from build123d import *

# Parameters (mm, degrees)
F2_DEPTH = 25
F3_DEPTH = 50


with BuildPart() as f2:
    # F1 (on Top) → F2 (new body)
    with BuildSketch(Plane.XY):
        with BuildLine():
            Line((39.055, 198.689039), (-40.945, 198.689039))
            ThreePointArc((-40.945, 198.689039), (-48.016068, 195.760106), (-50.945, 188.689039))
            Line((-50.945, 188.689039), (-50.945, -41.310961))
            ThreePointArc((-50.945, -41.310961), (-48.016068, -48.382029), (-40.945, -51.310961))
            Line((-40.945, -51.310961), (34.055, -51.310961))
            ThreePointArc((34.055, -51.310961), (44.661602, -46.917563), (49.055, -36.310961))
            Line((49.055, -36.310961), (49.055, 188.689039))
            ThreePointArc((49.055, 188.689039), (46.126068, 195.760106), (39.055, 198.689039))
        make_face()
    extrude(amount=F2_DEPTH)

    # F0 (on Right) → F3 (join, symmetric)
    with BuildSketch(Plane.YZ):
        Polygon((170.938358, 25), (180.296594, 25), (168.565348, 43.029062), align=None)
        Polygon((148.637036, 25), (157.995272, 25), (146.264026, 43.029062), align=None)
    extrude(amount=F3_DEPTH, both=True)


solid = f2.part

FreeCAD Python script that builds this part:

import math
import FreeCAD as App
import Part
import Sketcher
from FreeCAD import Vector

doc = App.newDocument("Part")
body = doc.addObject("PartDesign::Body", "Body")

sketch1 = doc.addObject("Sketcher::SketchObject", "Sketch")
body.addObject(sketch1)
sketch1.AttachmentSupport = (doc.XY_Plane, [""])
sketch1.MapMode = "FlatFace"
sketch1.addGeometry(Part.LineSegment(Vector(39, 199, 0), Vector(-41, 199, 0)), False)
sketch1.addGeometry(Part.ArcOfCircle(Part.Circle(Vector(-41, 189, 0), Vector(0, 0, 1), 10), math.radians(90), math.radians(180)), False)
sketch1.addGeometry(Part.LineSegment(Vector(-51, 189, 0), Vector(-51, -41, 0)), False)
sketch1.addGeometry(Part.ArcOfCircle(Part.Circle(Vector(-41, -41, 0), Vector(0, 0, 1), 10), math.radians(180), math.radians(270)), False)
sketch1.addGeometry(Part.LineSegment(Vector(-41, -51, 0), Vector(34, -51, 0)), False)
sketch1.addGeometry(Part.ArcOfCircle(Part.Circle(Vector(34, -36, 0), Vector(0, 0, 1), 15), math.radians(-90), math.radians(0)), False)
sketch1.addGeometry(Part.LineSegment(Vector(49, -36, 0), Vector(49, 189, 0)), False)
sketch1.addGeometry(Part.ArcOfCircle(Part.Circle(Vector(39, 189, 0), Vector(0, 0, 1), 10), math.radians(0), math.radians(90)), False)
sketch1.addConstraint(Sketcher.Constraint("Tangent", 0, 2, 1, 1))
sketch1.addConstraint(Sketcher.Constraint("Tangent", 1, 2, 2, 1))
sketch1.addConstraint(Sketcher.Constraint("Tangent", 2, 2, 3, 1))
sketch1.addConstraint(Sketcher.Constraint("Tangent", 3, 2, 4, 1))
sketch1.addConstraint(Sketcher.Constraint("Tangent", 4, 2, 5, 1))
sketch1.addConstraint(Sketcher.Constraint("Tangent", 5, 2, 6, 1))
sketch1.addConstraint(Sketcher.Constraint("Tangent", 6, 2, 7, 1))
sketch1.addConstraint(Sketcher.Constraint("Tangent", 7, 2, 0, 1))
sketch1.addConstraint(Sketcher.Constraint("Horizontal", 0))
sketch1.addConstraint(Sketcher.Constraint("Vertical", 2))
sketch1.addConstraint(Sketcher.Constraint("Horizontal", 4))
sketch1.addConstraint(Sketcher.Constraint("Vertical", 6))
sketch1.addConstraint(Sketcher.Constraint("Equal", 1, 3))
sketch1.addConstraint(Sketcher.Constraint("Equal", 3, 7))
sketch1.addConstraint(Sketcher.Constraint("Radius", 1, 10.000001))
sketch1.addConstraint(Sketcher.Constraint("Radius", 5, 14.999999))
sketch1.addConstraint(Sketcher.Constraint("DistanceX", 0, 2, 0, 1, 80.0))
sketch1.addConstraint(Sketcher.Constraint("DistanceY", 2, 2, 2, 1, 230.0))
sketch1.addConstraint(Sketcher.Constraint("DistanceX", 1, 3, -1, 1, 40.944999))
sketch1.addConstraint(Sketcher.Constraint("DistanceY", 3, 3, -1, 1, 41.310962))
pad1 = doc.addObject("PartDesign::Pad", "Pad")
body.addObject(pad1)
pad1.Profile = sketch1
pad1.Length = 25

sketch2 = doc.addObject("Sketcher::SketchObject", "Sketch001")
body.addObject(sketch2)
sketch2.AttachmentSupport = (doc.YZ_Plane, [""])
sketch2.MapMode = "FlatFace"
sketch2.addGeometry(Part.LineSegment(Vector(171, 25, 0), Vector(180, 25, 0)), False)
sketch2.addGeometry(Part.LineSegment(Vector(180, 25, 0), Vector(169, 43, 0)), False)
sketch2.addGeometry(Part.LineSegment(Vector(169, 43, 0), Vector(171, 25, 0)), False)
sketch2.addGeometry(Part.LineSegment(Vector(149, 25, 0), Vector(158, 25, 0)), False)
sketch2.addGeometry(Part.LineSegment(Vector(158, 25, 0), Vector(146, 43, 0)), False)
sketch2.addGeometry(Part.LineSegment(Vector(146, 43, 0), Vector(149, 25, 0)), False)
sketch2.addConstraint(Sketcher.Constraint("Coincident", 0, 2, 1, 1))
sketch2.addConstraint(Sketcher.Constraint("Coincident", 1, 2, 2, 1))
sketch2.addConstraint(Sketcher.Constraint("Coincident", 2, 2, 0, 1))
sketch2.addConstraint(Sketcher.Constraint("Coincident", 3, 2, 4, 1))
sketch2.addConstraint(Sketcher.Constraint("Coincident", 4, 2, 5, 1))
sketch2.addConstraint(Sketcher.Constraint("Coincident", 5, 2, 3, 1))
sketch2.addConstraint(Sketcher.Constraint("Horizontal", 0))
sketch2.addConstraint(Sketcher.Constraint("Horizontal", 3))
sketch2.addConstraint(Sketcher.Constraint("Parallel", 1, 4))
sketch2.addConstraint(Sketcher.Constraint("Parallel", 2, 5))
sketch2.addConstraint(Sketcher.Constraint("Horizontal", 2, 2, 3, 2))
sketch2.addConstraint(Sketcher.Constraint("Horizontal", 1, 2, 4, 2))
sketch2.addConstraint(Sketcher.Constraint("DistanceY", -1, 1, 0, 2, 25.0))
sketch2.addConstraint(Sketcher.Constraint("Distance", 2, 18.184561))
sketch2.addConstraint(Sketcher.Constraint("DistanceX", 0, 1, 0, 2, 9.358236))
sketch2.addConstraint(Sketcher.Constraint("DistanceX", -1, 1, 1, 2, 168.565348))
sketch2.addConstraint(Sketcher.Constraint("DistanceX", -1, 1, 2, 2, 170.938358))
sketch2.addConstraint(Sketcher.Constraint("DistanceX", -1, 1, 3, 2, 157.995272))
pad2 = doc.addObject("PartDesign::Pad", "Pad001")
body.addObject(pad2)
pad2.Profile = sketch2
pad2.Length = 100
pad2.Midplane = True

doc.recompute()
